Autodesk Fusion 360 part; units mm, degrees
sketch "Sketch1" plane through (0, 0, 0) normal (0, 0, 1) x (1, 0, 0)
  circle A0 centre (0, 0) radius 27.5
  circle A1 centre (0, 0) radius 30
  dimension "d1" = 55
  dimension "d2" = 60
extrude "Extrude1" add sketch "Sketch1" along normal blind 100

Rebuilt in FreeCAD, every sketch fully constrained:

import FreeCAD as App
import Part
import Sketcher

V = App.Vector

doc = App.newDocument("Part")
body = doc.addObject("PartDesign::Body", "Body")

sketch1 = doc.addObject("Sketcher::SketchObject", "Sketch")
body.addObject(sketch1)
sketch1.AttachmentSupport = (doc.XY_Plane, [""])
sketch1.MapMode = "FlatFace"
sketch1.addGeometry([
    Part.Circle(V(0, 0, 0), V(0, 0, 1), 30),
    Part.Circle(V(0, 0, 0), V(0, 0, 1), 28),
], False)
sketch1.addConstraint([
    Sketcher.Constraint("Coincident", 0, 3, -1, 1),
    Sketcher.Constraint("Coincident", 1, 3, -1, 1),
    Sketcher.Constraint("Diameter", 0, 60.0),
    Sketcher.Constraint("Diameter", 1, 55.0),
])
pad1 = doc.addObject("PartDesign::Pad", "Pad")
body.addObject(pad1)
pad1.Profile = sketch1
pad1.Length = 100

doc.recompute()
